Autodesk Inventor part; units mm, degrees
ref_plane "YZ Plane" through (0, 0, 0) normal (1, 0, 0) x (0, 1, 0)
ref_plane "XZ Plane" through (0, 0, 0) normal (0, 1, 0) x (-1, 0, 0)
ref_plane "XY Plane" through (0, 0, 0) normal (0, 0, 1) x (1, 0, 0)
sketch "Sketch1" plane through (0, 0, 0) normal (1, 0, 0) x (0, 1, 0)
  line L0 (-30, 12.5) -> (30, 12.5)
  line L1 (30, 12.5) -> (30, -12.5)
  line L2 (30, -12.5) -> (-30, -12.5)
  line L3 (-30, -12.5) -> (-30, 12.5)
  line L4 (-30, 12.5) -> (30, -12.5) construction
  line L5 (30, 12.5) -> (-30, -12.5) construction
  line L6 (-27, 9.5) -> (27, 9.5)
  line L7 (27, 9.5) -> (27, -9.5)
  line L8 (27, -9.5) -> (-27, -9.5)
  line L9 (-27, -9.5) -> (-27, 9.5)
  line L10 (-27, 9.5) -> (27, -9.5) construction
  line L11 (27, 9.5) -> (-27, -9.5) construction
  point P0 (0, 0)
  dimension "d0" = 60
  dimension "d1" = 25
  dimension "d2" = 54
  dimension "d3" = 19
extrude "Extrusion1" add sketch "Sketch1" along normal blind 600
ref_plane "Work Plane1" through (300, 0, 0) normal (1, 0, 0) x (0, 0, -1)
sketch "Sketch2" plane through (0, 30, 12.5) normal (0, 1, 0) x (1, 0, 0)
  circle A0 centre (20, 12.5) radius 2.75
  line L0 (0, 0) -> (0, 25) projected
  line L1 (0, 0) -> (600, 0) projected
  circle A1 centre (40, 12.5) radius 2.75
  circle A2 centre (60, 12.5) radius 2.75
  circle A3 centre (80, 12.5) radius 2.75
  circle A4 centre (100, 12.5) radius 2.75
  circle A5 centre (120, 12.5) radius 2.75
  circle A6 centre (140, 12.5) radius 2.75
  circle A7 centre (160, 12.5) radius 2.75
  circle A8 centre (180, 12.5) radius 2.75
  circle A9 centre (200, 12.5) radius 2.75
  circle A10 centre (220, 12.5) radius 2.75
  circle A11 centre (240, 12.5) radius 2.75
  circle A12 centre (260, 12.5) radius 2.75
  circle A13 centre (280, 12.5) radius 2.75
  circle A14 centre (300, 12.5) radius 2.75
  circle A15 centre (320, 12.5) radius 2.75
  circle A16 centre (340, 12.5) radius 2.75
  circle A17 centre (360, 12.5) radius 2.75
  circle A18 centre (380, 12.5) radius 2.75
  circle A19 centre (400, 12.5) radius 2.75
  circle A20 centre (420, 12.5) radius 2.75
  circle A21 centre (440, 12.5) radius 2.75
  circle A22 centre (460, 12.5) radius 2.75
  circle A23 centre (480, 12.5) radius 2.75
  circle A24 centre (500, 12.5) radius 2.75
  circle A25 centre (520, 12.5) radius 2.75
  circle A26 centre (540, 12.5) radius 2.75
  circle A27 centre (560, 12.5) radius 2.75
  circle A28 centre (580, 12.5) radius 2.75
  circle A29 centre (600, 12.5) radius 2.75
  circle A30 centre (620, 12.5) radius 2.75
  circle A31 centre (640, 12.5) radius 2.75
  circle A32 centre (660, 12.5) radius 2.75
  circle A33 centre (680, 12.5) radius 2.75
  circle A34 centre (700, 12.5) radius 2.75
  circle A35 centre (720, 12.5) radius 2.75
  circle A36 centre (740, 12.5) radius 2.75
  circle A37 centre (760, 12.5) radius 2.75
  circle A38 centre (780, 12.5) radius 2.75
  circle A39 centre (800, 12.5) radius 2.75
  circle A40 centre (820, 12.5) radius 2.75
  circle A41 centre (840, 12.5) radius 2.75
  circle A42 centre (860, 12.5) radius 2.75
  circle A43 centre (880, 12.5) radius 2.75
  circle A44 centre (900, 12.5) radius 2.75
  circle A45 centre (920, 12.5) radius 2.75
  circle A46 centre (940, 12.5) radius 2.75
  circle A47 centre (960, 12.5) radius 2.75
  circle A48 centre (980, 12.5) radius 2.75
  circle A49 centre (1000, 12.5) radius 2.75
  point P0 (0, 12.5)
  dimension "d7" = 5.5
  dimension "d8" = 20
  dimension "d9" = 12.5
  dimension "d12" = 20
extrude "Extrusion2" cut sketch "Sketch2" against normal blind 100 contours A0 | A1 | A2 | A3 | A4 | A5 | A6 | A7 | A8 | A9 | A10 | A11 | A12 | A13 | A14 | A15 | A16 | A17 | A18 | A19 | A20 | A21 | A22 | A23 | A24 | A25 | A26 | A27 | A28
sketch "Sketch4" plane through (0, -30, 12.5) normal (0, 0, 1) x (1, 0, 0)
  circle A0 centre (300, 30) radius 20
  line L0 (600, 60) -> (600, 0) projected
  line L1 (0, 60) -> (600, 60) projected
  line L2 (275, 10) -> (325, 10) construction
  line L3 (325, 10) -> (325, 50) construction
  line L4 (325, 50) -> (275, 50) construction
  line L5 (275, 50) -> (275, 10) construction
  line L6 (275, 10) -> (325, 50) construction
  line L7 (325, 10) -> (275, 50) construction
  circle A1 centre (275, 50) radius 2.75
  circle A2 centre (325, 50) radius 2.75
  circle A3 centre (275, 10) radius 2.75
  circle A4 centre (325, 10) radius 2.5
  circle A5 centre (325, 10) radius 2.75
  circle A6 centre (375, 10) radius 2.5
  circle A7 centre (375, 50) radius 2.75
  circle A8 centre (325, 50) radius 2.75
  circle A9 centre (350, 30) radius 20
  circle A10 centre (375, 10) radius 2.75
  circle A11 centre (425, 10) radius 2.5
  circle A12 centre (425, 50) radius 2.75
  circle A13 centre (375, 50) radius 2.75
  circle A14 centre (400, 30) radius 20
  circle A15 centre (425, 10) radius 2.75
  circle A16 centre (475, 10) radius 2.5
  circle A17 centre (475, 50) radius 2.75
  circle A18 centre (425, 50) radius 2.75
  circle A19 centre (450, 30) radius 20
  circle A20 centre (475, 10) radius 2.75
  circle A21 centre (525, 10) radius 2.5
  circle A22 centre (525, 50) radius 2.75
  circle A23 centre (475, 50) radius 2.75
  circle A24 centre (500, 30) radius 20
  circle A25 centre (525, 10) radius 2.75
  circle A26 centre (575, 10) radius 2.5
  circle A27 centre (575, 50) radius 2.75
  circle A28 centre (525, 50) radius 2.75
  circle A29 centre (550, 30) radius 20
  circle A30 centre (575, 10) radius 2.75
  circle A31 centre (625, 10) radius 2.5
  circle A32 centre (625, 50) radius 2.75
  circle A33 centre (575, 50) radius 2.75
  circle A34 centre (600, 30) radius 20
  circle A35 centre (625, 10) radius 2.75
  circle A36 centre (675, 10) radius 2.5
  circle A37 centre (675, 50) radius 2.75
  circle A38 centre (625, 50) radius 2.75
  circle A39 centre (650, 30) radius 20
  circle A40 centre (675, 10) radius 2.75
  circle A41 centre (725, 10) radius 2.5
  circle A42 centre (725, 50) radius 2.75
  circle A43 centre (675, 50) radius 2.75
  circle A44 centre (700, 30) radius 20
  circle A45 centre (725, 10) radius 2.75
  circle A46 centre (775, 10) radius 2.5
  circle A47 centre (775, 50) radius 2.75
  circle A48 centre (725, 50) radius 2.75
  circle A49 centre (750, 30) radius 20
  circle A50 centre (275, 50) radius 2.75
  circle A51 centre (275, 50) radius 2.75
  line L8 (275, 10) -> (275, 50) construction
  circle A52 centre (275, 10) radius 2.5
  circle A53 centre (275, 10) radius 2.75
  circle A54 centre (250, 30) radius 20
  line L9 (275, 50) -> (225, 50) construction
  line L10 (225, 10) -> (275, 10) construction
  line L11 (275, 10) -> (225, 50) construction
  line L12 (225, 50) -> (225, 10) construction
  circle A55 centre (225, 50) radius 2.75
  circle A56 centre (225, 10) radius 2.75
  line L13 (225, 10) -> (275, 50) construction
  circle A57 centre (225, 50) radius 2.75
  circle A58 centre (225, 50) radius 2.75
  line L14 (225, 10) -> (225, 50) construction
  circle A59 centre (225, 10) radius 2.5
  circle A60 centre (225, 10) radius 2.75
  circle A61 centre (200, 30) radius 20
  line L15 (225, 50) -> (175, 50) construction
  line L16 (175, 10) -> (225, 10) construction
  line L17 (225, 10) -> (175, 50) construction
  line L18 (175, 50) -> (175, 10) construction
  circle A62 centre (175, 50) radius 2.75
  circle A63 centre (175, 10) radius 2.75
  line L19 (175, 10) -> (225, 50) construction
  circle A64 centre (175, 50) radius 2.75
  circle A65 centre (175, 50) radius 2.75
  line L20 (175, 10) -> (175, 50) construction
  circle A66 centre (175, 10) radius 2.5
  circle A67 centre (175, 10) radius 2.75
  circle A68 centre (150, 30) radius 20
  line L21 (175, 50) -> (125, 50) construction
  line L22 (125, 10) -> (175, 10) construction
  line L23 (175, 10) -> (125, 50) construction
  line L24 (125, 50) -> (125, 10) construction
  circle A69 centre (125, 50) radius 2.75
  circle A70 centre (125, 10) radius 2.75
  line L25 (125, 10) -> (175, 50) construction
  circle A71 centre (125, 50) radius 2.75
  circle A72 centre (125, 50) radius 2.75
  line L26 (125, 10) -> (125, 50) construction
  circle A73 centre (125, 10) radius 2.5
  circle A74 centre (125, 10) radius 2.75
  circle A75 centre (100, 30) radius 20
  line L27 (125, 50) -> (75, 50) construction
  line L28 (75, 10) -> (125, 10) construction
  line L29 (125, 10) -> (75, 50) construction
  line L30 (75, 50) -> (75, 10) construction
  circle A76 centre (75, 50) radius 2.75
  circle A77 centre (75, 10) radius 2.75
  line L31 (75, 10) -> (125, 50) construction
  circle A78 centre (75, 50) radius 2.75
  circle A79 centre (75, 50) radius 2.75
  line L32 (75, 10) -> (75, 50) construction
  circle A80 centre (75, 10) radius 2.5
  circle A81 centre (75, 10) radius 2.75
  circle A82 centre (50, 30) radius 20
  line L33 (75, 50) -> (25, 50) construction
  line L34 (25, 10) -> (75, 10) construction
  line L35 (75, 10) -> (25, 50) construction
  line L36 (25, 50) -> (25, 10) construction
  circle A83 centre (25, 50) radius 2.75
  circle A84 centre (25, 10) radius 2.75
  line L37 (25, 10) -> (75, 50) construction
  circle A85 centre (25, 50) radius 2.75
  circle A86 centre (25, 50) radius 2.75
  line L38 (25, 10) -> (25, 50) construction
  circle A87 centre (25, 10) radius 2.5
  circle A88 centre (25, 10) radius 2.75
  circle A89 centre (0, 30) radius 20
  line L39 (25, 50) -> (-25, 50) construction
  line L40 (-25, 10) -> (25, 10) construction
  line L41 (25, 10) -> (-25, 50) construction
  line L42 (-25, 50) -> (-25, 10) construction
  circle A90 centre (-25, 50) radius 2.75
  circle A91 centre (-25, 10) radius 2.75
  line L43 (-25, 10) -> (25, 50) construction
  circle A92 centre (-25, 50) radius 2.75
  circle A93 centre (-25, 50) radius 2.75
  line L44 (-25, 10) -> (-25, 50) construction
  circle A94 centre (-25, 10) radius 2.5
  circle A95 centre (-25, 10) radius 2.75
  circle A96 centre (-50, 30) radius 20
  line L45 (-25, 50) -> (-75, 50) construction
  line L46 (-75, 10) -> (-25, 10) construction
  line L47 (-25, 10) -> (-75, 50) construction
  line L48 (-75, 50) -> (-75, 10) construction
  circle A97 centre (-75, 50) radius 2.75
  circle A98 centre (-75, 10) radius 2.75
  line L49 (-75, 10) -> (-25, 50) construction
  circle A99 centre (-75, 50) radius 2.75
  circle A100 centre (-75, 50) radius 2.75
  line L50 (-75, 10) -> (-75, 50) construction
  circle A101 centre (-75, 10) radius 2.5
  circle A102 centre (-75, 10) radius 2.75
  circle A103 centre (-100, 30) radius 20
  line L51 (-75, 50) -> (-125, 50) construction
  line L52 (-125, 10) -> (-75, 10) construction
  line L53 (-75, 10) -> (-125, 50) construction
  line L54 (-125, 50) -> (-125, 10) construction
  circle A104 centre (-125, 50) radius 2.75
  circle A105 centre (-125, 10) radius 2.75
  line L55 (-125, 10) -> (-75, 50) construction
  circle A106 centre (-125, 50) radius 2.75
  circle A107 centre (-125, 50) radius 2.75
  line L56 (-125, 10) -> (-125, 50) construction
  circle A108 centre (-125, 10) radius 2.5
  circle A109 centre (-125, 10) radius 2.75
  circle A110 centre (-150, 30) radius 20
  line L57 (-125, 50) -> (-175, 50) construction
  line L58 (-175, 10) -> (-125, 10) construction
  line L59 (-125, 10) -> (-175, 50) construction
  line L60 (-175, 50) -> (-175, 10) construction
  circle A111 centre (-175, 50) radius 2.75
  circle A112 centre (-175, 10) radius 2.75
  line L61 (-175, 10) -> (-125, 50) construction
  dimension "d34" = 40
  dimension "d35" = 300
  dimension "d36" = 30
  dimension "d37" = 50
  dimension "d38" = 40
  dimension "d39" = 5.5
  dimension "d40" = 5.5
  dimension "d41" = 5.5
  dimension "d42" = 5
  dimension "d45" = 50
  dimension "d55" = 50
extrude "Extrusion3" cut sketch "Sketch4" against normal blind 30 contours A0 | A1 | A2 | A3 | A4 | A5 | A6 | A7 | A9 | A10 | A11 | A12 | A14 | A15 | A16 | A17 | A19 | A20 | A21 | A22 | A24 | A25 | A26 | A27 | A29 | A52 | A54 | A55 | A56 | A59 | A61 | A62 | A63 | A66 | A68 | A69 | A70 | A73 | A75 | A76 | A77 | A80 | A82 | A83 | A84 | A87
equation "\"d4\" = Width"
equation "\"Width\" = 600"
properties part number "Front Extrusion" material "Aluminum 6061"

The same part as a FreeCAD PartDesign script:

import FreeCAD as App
import Part
import Sketcher

V = App.Vector
Q = App.Units.Quantity


def add_polygon(sketch, points):
    """Adds a closed chain of lines whose ends are joined by coincident constraints."""
    first, n = sketch.GeometryCount, len(points)
    for a, b in zip(points, points[1:] + points[:1]):
        sketch.addGeometry(Part.LineSegment(App.Vector(*a, 0), App.Vector(*b, 0)), False)
    for i in range(n):
        sketch.addConstraint(Sketcher.Constraint("Coincident", first + i, 2, first + (i + 1) % n, 1))

doc = App.newDocument("Part")
body = doc.addObject("PartDesign::Body", "Body")

# Sketch on YZ plane
sketch1 = body.newObject("Sketcher::SketchObject", "Sketch")
sketch1.AttachmentSupport = (doc.getObject("YZ_Plane"), [""])
sketch1.MapMode = "FlatFace"
add_polygon(sketch1, [(30, 12), (-30, 12), (-30, -12), (30, -12)])  # lines 0-3
add_polygon(sketch1, [(-27, -10), (-27, 10), (27, 10), (27, -10)])  # lines 4-7
sketch1.addConstraint(Sketcher.Constraint("Horizontal", 0))
sketch1.addConstraint(Sketcher.Constraint("Vertical", 1))
sketch1.addConstraint(Sketcher.Constraint("Horizontal", 2))
sketch1.addConstraint(Sketcher.Constraint("Vertical", 3))
sketch1.addConstraint(Sketcher.Constraint("Vertical", 4))
sketch1.addConstraint(Sketcher.Constraint("Horizontal", 5))
sketch1.addConstraint(Sketcher.Constraint("Vertical", 6))
sketch1.addConstraint(Sketcher.Constraint("Horizontal", 7))
sketch1.addConstraint(Sketcher.Constraint("Symmetric", 0, 2, 2, 2, -1, 1))
sketch1.addConstraint(Sketcher.Constraint("Symmetric", 4, 2, 6, 2, -1, 1))
sketch1.addConstraint(Sketcher.Constraint("DistanceX", 0, 2, 0, 1, Q("60 mm")))
sketch1.addConstraint(Sketcher.Constraint("DistanceX", 5, 1, 5, 2, Q("54 mm")))
sketch1.addConstraint(Sketcher.Constraint("DistanceY", 1, 2, 1, 1, Q("25 mm")))
sketch1.addConstraint(Sketcher.Constraint("DistanceY", 4, 1, 4, 2, Q("19 mm")))
pad1 = body.newObject("PartDesign::Pad", "Pad")
pad1.Profile = sketch1
pad1.Length = 600

# Sketch on XZ plane
sketch2 = body.newObject("Sketcher::SketchObject", "Sketch001")
sketch2.AttachmentSupport = (doc.getObject("XZ_Plane"), [""])
sketch2.MapMode = "FlatFace"
sketch2.AttachmentOffset = App.Placement(V(0, 0, -30), App.Rotation())
sketch2.addGeometry(Part.Circle(V(20, 0, 0), V(0, 0, 1), 2.8), False)
sketch2.addGeometry(Part.Circle(V(40, 0, 0), V(0, 0, 1), 2.8), False)
sketch2.addGeometry(Part.Circle(V(60, 0, 0), V(0, 0, 1), 2.8), False)
sketch2.addGeometry(Part.Circle(V(80, 0, 0), V(0, 0, 1), 2.8), False)
sketch2.addGeometry(Part.Circle(V(100, 0, 0), V(0, 0, 1), 2.8), False)
sketch2.addGeometry(Part.Circle(V(120, 0, 0), V(0, 0, 1), 2.8), False)
sketch2.addGeometry(Part.Circle(V(140, 0, 0), V(0, 0, 1), 2.8), False)
sketch2.addGeometry(Part.Circle(V(160, 0, 0), V(0, 0, 1), 2.8), False)
sketch2.addGeometry(Part.Circle(V(180, 0, 0), V(0, 0, 1), 2.8), False)
sketch2.addGeometry(Part.Circle(V(200, 0, 0), V(0, 0, 1), 2.8), False)
sketch2.addGeometry(Part.Circle(V(220, 0, 0), V(0, 0, 1), 2.8), False)
sketch2.addGeometry(Part.Circle(V(240, 0, 0), V(0, 0, 1), 2.8), False)
sketch2.addGeometry(Part.Circle(V(260, 0, 0), V(0, 0, 1), 2.8), False)
sketch2.addGeometry(Part.Circle(V(280, 0, 0), V(0, 0, 1), 2.8), False)
sketch2.addGeometry(Part.Circle(V(300, 0, 0), V(0, 0, 1), 2.8), False)
sketch2.addGeometry(Part.Circle(V(320, 0, 0), V(0, 0, 1), 2.8), False)
sketch2.addGeometry(Part.Circle(V(340, 0, 0), V(0, 0, 1), 2.8), False)
sketch2.addGeometry(Part.Circle(V(360, 0, 0), V(0, 0, 1), 2.8), False)
sketch2.addGeometry(Part.Circle(V(380, 0, 0), V(0, 0, 1), 2.8), False)
sketch2.addGeometry(Part.Circle(V(400, 0, 0), V(0, 0, 1), 2.8), False)
sketch2.addGeometry(Part.Circle(V(420, 0, 0), V(0, 0, 1), 2.8), False)
sketch2.addGeometry(Part.Circle(V(440, 0, 0), V(0, 0, 1), 2.8), False)
sketch2.addGeometry(Part.Circle(V(460, 0, 0), V(0, 0, 1), 2.8), False)
sketch2.addGeometry(Part.Circle(V(480, 0, 0), V(0, 0, 1), 2.8), False)
sketch2.addGeometry(Part.Circle(V(500, 0, 0), V(0, 0, 1), 2.8), False)
sketch2.addGeometry(Part.Circle(V(520, 0, 0), V(0, 0, 1), 2.8), False)
sketch2.addGeometry(Part.Circle(V(540, 0, 0), V(0, 0, 1), 2.8), False)
sketch2.addGeometry(Part.Circle(V(560, 0, 0), V(0, 0, 1), 2.8), False)
sketch2.addGeometry(Part.Circle(V(580, 0, 0), V(0, 0, 1), 2.8), False)
sketch2.addConstraint(Sketcher.Constraint("Equal", 0, 1))
sketch2.addConstraint(Sketcher.Constraint("Equal", 1, 2))
sketch2.addConstraint(Sketcher.Constraint("Equal", 2, 3))
sketch2.addConstraint(Sketcher.Constraint("Equal", 3, 4))
sketch2.addConstraint(Sketcher.Constraint("Equal", 4, 5))
sketch2.addConstraint(Sketcher.Constraint("Equal", 5, 6))
sketch2.addConstraint(Sketcher.Constraint("Equal", 6, 7))
sketch2.addConstraint(Sketcher.Constraint("Equal", 7, 8))
sketch2.addConstraint(Sketcher.Constraint("Equal", 8, 9))
sketch2.addConstraint(Sketcher.Constraint("Equal", 9, 10))
sketch2.addConstraint(Sketcher.Constraint("Equal", 10, 11))
sketch2.addConstraint(Sketcher.Constraint("Equal", 11, 12))
sketch2.addConstraint(Sketcher.Constraint("Equal", 12, 13))
sketch2.addConstraint(Sketcher.Constraint("Equal", 13, 14))
sketch2.addConstraint(Sketcher.Constraint("Equal", 14, 15))
sketch2.addConstraint(Sketcher.Constraint("Equal", 15, 16))
sketch2.addConstraint(Sketcher.Constraint("Equal", 16, 17))
sketch2.addConstraint(Sketcher.Constraint("Equal", 17, 18))
sketch2.addConstraint(Sketcher.Constraint("Equal", 18, 19))
sketch2.addConstraint(Sketcher.Constraint("Equal", 19, 20))
sketch2.addConstraint(Sketcher.Constraint("Equal", 20, 21))
sketch2.addConstraint(Sketcher.Constraint("Equal", 21, 22))
sketch2.addConstraint(Sketcher.Constraint("Equal", 22, 23))
sketch2.addConstraint(Sketcher.Constraint("Equal", 23, 24))
sketch2.addConstraint(Sketcher.Constraint("Equal", 24, 25))
sketch2.addConstraint(Sketcher.Constraint("Equal", 25, 26))
sketch2.addConstraint(Sketcher.Constraint("Equal", 26, 27))
sketch2.addConstraint(Sketcher.Constraint("Equal", 27, 28))
sketch2.addConstraint(Sketcher.Constraint("PointOnObject", 0, 3, -1))
sketch2.addConstraint(Sketcher.Constraint("PointOnObject", 1, 3, -1))
sketch2.addConstraint(Sketcher.Constraint("PointOnObject", 2, 3, -1))
sketch2.addConstraint(Sketcher.Constraint("PointOnObject", 3, 3, -1))
sketch2.addConstraint(Sketcher.Constraint("PointOnObject", 4, 3, -1))
sketch2.addConstraint(Sketcher.Constraint("PointOnObject", 5, 3, -1))
sketch2.addConstraint(Sketcher.Constraint("PointOnObject", 6, 3, -1))
sketch2.addConstraint(Sketcher.Constraint("PointOnObject", 7, 3, -1))
sketch2.addConstraint(Sketcher.Constraint("PointOnObject", 8, 3, -1))
sketch2.addConstraint(Sketcher.Constraint("PointOnObject", 9, 3, -1))
sketch2.addConstraint(Sketcher.Constraint("PointOnObject", 10, 3, -1))
sketch2.addConstraint(Sketcher.Constraint("PointOnObject", 11, 3, -1))
sketch2.addConstraint(Sketcher.Constraint("PointOnObject", 12, 3, -1))
sketch2.addConstraint(Sketcher.Constraint("PointOnObject", 13, 3, -1))
sketch2.addConstraint(Sketcher.Constraint("PointOnObject", 14, 3, -1))
sketch2.addConstraint(Sketcher.Constraint("PointOnObject", 15, 3, -1))
sketch2.addConstraint(Sketcher.Constraint("PointOnObject", 16, 3, -1))
sketch2.addConstraint(Sketcher.Constraint("PointOnObject", 17, 3, -1))
sketch2.addConstraint(Sketcher.Constraint("PointOnObject", 18, 3, -1))
sketch2.addConstraint(Sketcher.Constraint("PointOnObject", 19, 3, -1))
sketch2.addConstraint(Sketcher.Constraint("PointOnObject", 20, 3, -1))
sketch2.addConstraint(Sketcher.Constraint("PointOnObject", 21, 3, -1))
sketch2.addConstraint(Sketcher.Constraint("PointOnObject", 22, 3, -1))
sketch2.addConstraint(Sketcher.Constraint("PointOnObject", 23, 3, -1))
sketch2.addConstraint(Sketcher.Constraint("PointOnObject", 24, 3, -1))
sketch2.addConstraint(Sketcher.Constraint("PointOnObject", 25, 3, -1))
sketch2.addConstraint(Sketcher.Constraint("PointOnObject", 26, 3, -1))
sketch2.addConstraint(Sketcher.Constraint("PointOnObject", 27, 3, -1))
sketch2.addConstraint(Sketcher.Constraint("PointOnObject", 28, 3, -1))
sketch2.addConstraint(Sketcher.Constraint("Diameter", 0, Q("5.5 mm")))
sketch2.addConstraint(Sketcher.Constraint("DistanceX", -1, 1, 0, 3, Q("20 mm")))
sketch2.addConstraint(Sketcher.Constraint("DistanceX", 0, 3, 1, 3, Q("20 mm")))
sketch2.addConstraint(Sketcher.Constraint("DistanceX", 1, 3, 2, 3, Q("20 mm")))
sketch2.addConstraint(Sketcher.Constraint("DistanceX", 2, 3, 3, 3, Q("20 mm")))
sketch2.addConstraint(Sketcher.Constraint("DistanceX", 3, 3, 4, 3, Q("20 mm")))
sketch2.addConstraint(Sketcher.Constraint("DistanceX", 4, 3, 5, 3, Q("20 mm")))
sketch2.addConstraint(Sketcher.Constraint("DistanceX", 5, 3, 6, 3, Q("20 mm")))
sketch2.addConstraint(Sketcher.Constraint("DistanceX", 6, 3, 7, 3, Q("20 mm")))
sketch2.addConstraint(Sketcher.Constraint("DistanceX", 7, 3, 8, 3, Q("20 mm")))
sketch2.addConstraint(Sketcher.Constraint("DistanceX", 8, 3, 9, 3, Q("20 mm")))
sketch2.addConstraint(Sketcher.Constraint("DistanceX", 9, 3, 10, 3, Q("20 mm")))
sketch2.addConstraint(Sketcher.Constraint("DistanceX", 10, 3, 11, 3, Q("20 mm")))
sketch2.addConstraint(Sketcher.Constraint("DistanceX", 11, 3, 12, 3, Q("20 mm")))
sketch2.addConstraint(Sketcher.Constraint("DistanceX", 12, 3, 13, 3, Q("20 mm")))
sketch2.addConstraint(Sketcher.Constraint("DistanceX", 13, 3, 14, 3, Q("20 mm")))
sketch2.addConstraint(Sketcher.Constraint("DistanceX", 14, 3, 15, 3, Q("20 mm")))
sketch2.addConstraint(Sketcher.Constraint("DistanceX", 15, 3, 16, 3, Q("20 mm")))
sketch2.addConstraint(Sketcher.Constraint("DistanceX", 16, 3, 17, 3, Q("20 mm")))
sketch2.addConstraint(Sketcher.Constraint("DistanceX", 17, 3, 18, 3, Q("20 mm")))
sketch2.addConstraint(Sketcher.Constraint("DistanceX", 18, 3, 19, 3, Q("20 mm")))
sketch2.addConstraint(Sketcher.Constraint("DistanceX", 19, 3, 20, 3, Q("20 mm")))
sketch2.addConstraint(Sketcher.Constraint("DistanceX", 20, 3, 21, 3, Q("20 mm")))
sketch2.addConstraint(Sketcher.Constraint("DistanceX", 21, 3, 22, 3, Q("20 mm")))
sketch2.addConstraint(Sketcher.Constraint("DistanceX", 22, 3, 23, 3, Q("20 mm")))
sketch2.addConstraint(Sketcher.Constraint("DistanceX", 23, 3, 24, 3, Q("20 mm")))
sketch2.addConstraint(Sketcher.Constraint("DistanceX", 24, 3, 25, 3, Q("20 mm")))
sketch2.addConstraint(Sketcher.Constraint("DistanceX", 25, 3, 26, 3, Q("20 mm")))
sketch2.addConstraint(Sketcher.Constraint("DistanceX", 26, 3, 27, 3, Q("20 mm")))
sketch2.addConstraint(Sketcher.Constraint("DistanceX", 27, 3, 28, 3, Q("20 mm")))
pocket1 = body.newObject("PartDesign::Pocket", "Pocket")
pocket1.Profile = sketch2
pocket1.Length = 100
pocket1.Reversed = True

# Sketch on XY plane
sketch3 = body.newObject("Sketcher::SketchObject", "Sketch002")
sketch3.AttachmentSupport = (doc.getObject("XY_Plane"), [""])
sketch3.MapMode = "FlatFace"
sketch3.AttachmentOffset = App.Placement(V(0, 0, 12.5), App.Rotation())
sketch3.addGeometry(Part.Circle(V(300, 0, 0), V(0, 0, 1), 20), False)
sketch3.addGeometry(Part.Circle(V(275, 20, 0), V(0, 0, 1), 2.8), False)
sketch3.addGeometry(Part.Circle(V(325, 20, 0), V(0, 0, 1), 2.8), False)
sketch3.addGeometry(Part.Circle(V(275, -20, 0), V(0, 0, 1), 2.8), False)
sketch3.addGeometry(Part.Circle(V(325, -20, 0), V(0, 0, 1), 2.8), False)
sketch3.addGeometry(Part.Circle(V(375, -20, 0), V(0, 0, 1), 2.8), False)
sketch3.addGeometry(Part.Circle(V(375, 20, 0), V(0, 0, 1), 2.8), False)
sketch3.addGeometry(Part.Circle(V(350, 0, 0), V(0, 0, 1), 20), False)
sketch3.addGeometry(Part.Circle(V(425, -20, 0), V(0, 0, 1), 2.8), False)
sketch3.addGeometry(Part.Circle(V(425, 20, 0), V(0, 0, 1), 2.8), False)
sketch3.addGeometry(Part.Circle(V(400, 0, 0), V(0, 0, 1), 20), False)
sketch3.addGeometry(Part.Circle(V(475, -20, 0), V(0, 0, 1), 2.8), False)
sketch3.addGeometry(Part.Circle(V(475, 20, 0), V(0, 0, 1), 2.8), False)
sketch3.addGeometry(Part.Circle(V(450, 0, 0), V(0, 0, 1), 20), False)
sketch3.addGeometry(Part.Circle(V(525, -20, 0), V(0, 0, 1), 2.8), False)
sketch3.addGeometry(Part.Circle(V(525, 20, 0), V(0, 0, 1), 2.8), False)
sketch3.addGeometry(Part.Circle(V(500, 0, 0), V(0, 0, 1), 20), False)
sketch3.addGeometry(Part.Circle(V(575, -20, 0), V(0, 0, 1), 2.5), False)
sketch3.addGeometry(Part.Circle(V(575, 20, 0), V(0, 0, 1), 2.8), False)
sketch3.addGeometry(Part.Circle(V(550, 0, 0), V(0, 0, 1), 20), False)
sketch3.addGeometry(Part.Circle(V(250, 0, 0), V(0, 0, 1), 20), False)
sketch3.addGeometry(Part.Circle(V(225, 20, 0), V(0, 0, 1), 2.8), False)
sketch3.addGeometry(Part.Circle(V(225, -20, 0), V(0, 0, 1), 2.8), False)
sketch3.addGeometry(Part.Circle(V(200, 0, 0), V(0, 0, 1), 20), False)
sketch3.addGeometry(Part.Circle(V(175, 20, 0), V(0, 0, 1), 2.8), False)
sketch3.addGeometry(Part.Circle(V(175, -20, 0), V(0, 0, 1), 2.8), False)
sketch3.addGeometry(Part.Circle(V(150, 0, 0), V(0, 0, 1), 20), False)
sketch3.addGeometry(Part.Circle(V(125, 20, 0), V(0, 0, 1), 2.8), False)
sketch3.addGeometry(Part.Circle(V(125, -20, 0), V(0, 0, 1), 2.8), False)
sketch3.addGeometry(Part.Circle(V(100, 0, 0), V(0, 0, 1), 20), False)
sketch3.addGeometry(Part.Circle(V(75, 20, 0), V(0, 0, 1), 2.8), False)
sketch3.addGeometry(Part.Circle(V(75, -20, 0), V(0, 0, 1), 2.8), False)
sketch3.addGeometry(Part.Circle(V(50, 0, 0), V(0, 0, 1), 20), False)
sketch3.addGeometry(Part.Circle(V(25, 20, 0), V(0, 0, 1), 2.8), False)
sketch3.addGeometry(Part.Circle(V(25, -20, 0), V(0, 0, 1), 2.8), False)
sketch3.addConstraint(Sketcher.Constraint("Equal", 1, 2))
sketch3.addConstraint(Sketcher.Constraint("Equal", 2, 3))
sketch3.addConstraint(Sketcher.Constraint("Equal", 3, 4))
sketch3.addConstraint(Sketcher.Constraint("Equal", 4, 5))
sketch3.addConstraint(Sketcher.Constraint("Equal", 5, 6))
sketch3.addConstraint(Sketcher.Constraint("Equal", 0, 7))
sketch3.addConstraint(Sketcher.Constraint("Equal", 6, 8))
sketch3.addConstraint(Sketcher.Constraint("Equal", 8, 9))
sketch3.addConstraint(Sketcher.Constraint("Equal", 7, 10))
sketch3.addConstraint(Sketcher.Constraint("Equal", 9, 11))
sketch3.addConstraint(Sketcher.Constraint("Equal", 11, 12))
sketch3.addConstraint(Sketcher.Constraint("Equal", 10, 13))
sketch3.addConstraint(Sketcher.Constraint("Equal", 12, 14))
sketch3.addConstraint(Sketcher.Constraint("Equal", 14, 15))
sketch3.addConstraint(Sketcher.Constraint("Equal", 13, 16))
sketch3.addConstraint(Sketcher.Constraint("Equal", 15, 18))
sketch3.addConstraint(Sketcher.Constraint("Equal", 16, 19))
sketch3.addConstraint(Sketcher.Constraint("Equal", 19, 20))
sketch3.addConstraint(Sketcher.Constraint("Equal", 18, 21))
sketch3.addConstraint(Sketcher.Constraint("Equal", 21, 22))
sketch3.addConstraint(Sketcher.Constraint("Equal", 20, 23))
sketch3.addConstraint(Sketcher.Constraint("Equal", 22, 24))
sketch3.addConstraint(Sketcher.Constraint("Equal", 24, 25))
sketch3.addConstraint(Sketcher.Constraint("Equal", 23, 26))
sketch3.addConstraint(Sketcher.Constraint("Equal", 25, 27))
sketch3.addConstraint(Sketcher.Constraint("Equal", 27, 28))
sketch3.addConstraint(Sketcher.Constraint("Equal", 26, 29))
sketch3.addConstraint(Sketcher.Constraint("Equal", 28, 30))
sketch3.addConstraint(Sketcher.Constraint("Equal", 30, 31))
sketch3.addConstraint(Sketcher.Constraint("Equal", 29, 32))
sketch3.addConstraint(Sketcher.Constraint("Equal", 31, 33))
sketch3.addConstraint(Sketcher.Constraint("Equal", 33, 34))
sketch3.addConstraint(Sketcher.Constraint("Symmetric", 1, 3, 3, 3, -1))
sketch3.addConstraint(Sketcher.Constraint("Symmetric", 2, 3, 4, 3, -1))
sketch3.addConstraint(Sketcher.Constraint("Symmetric", 5, 3, 6, 3, -1))
sketch3.addConstraint(Sketcher.Constraint("Symmetric", 8, 3, 9, 3, -1))
sketch3.addConstraint(Sketcher.Constraint("Symmetric", 11, 3, 12, 3, -1))
sketch3.addConstraint(Sketcher.Constraint("Symmetric", 14, 3, 15, 3, -1))
sketch3.addConstraint(Sketcher.Constraint("Symmetric", 17, 3, 18, 3, -1))
sketch3.addConstraint(Sketcher.Constraint("Symmetric", 21, 3, 22, 3, -1))
sketch3.addConstraint(Sketcher.Constraint("Symmetric", 24, 3, 25, 3, -1))
sketch3.addConstraint(Sketcher.Constraint("Symmetric", 27, 3, 28, 3, -1))
sketch3.addConstraint(Sketcher.Constraint("Symmetric", 30, 3, 31, 3, -1))
sketch3.addConstraint(Sketcher.Constraint("Symmetric", 33, 3, 34, 3, -1))
sketch3.addConstraint(Sketcher.Constraint("PointOnObject", 0, 3, -1))
sketch3.addConstraint(Sketcher.Constraint("PointOnObject", 7, 3, -1))
sketch3.addConstraint(Sketcher.Constraint("PointOnObject", 10, 3, -1))
sketch3.addConstraint(Sketcher.Constraint("PointOnObject", 13, 3, -1))
sketch3.addConstraint(Sketcher.Constraint("PointOnObject", 16, 3, -1))
sketch3.addConstraint(Sketcher.Constraint("PointOnObject", 19, 3, -1))
sketch3.addConstraint(Sketcher.Constraint("PointOnObject", 20, 3, -1))
sketch3.addConstraint(Sketcher.Constraint("PointOnObject", 23, 3, -1))
sketch3.addConstraint(Sketcher.Constraint("PointOnObject", 26, 3, -1))
sketch3.addConstraint(Sketcher.Constraint("PointOnObject", 29, 3, -1))
sketch3.addConstraint(Sketcher.Constraint("PointOnObject", 32, 3, -1))
sketch3.addConstraint(Sketcher.Constraint("Horizontal", 1, 3, 2, 3))
sketch3.addConstraint(Sketcher.Constraint("Horizontal", 4, 3, 5, 3))
sketch3.addConstraint(Sketcher.Constraint("Horizontal", 5, 3, 8, 3))
sketch3.addConstraint(Sketcher.Constraint("Horizontal", 8, 3, 11, 3))
sketch3.addConstraint(Sketcher.Constraint("Horizontal", 11, 3, 14, 3))
sketch3.addConstraint(Sketcher.Constraint("Horizontal", 14, 3, 17, 3))
sketch3.addConstraint(Sketcher.Constraint("Horizontal", 18, 3, 21, 3))
sketch3.addConstraint(Sketcher.Constraint("Horizontal", 21, 3, 24, 3))
sketch3.addConstraint(Sketcher.Constraint("Horizontal", 24, 3, 27, 3))
sketch3.addConstraint(Sketcher.Constraint("Horizontal", 27, 3, 30, 3))
sketch3.addConstraint(Sketcher.Constraint("Horizontal", 30, 3, 33, 3))
sketch3.addConstraint(Sketcher.Constraint("Diameter", 0, Q("40 mm")))
sketch3.addConstraint(Sketcher.Constraint("Diameter", 17, Q("5 mm")))
sketch3.addConstraint(Sketcher.Constraint("Diameter", 1, Q("5.5 mm")))
sketch3.addConstraint(Sketcher.Constraint("DistanceX", -1, 1, 0, 3, Q("300 mm")))
sketch3.addConstraint(Sketcher.Constraint("DistanceX", -1, 1, 32, 3, Q("50 mm")))
sketch3.addConstraint(Sketcher.Constraint("DistanceX", 1, 3, 2, 3, Q("50 mm")))
sketch3.addConstraint(Sketcher.Constraint("DistanceY", 3, 3, 1, 3, Q("40 mm")))
sketch3.addConstraint(Sketcher.Constraint("DistanceX", 4, 3, 5, 3, Q("50 mm")))
sketch3.addConstraint(Sketcher.Constraint("DistanceX", 0, 3, 7, 3, Q("50 mm")))
sketch3.addConstraint(Sketcher.Constraint("DistanceX", 5, 3, 8, 3, Q("50 mm")))
sketch3.addConstraint(Sketcher.Constraint("DistanceX", 7, 3, 10, 3, Q("50 mm")))
sketch3.addConstraint(Sketcher.Constraint("DistanceX", 8, 3, 11, 3, Q("50 mm")))
sketch3.addConstraint(Sketcher.Constraint("DistanceX", 10, 3, 13, 3, Q("50 mm")))
sketch3.addConstraint(Sketcher.Constraint("DistanceX", 11, 3, 14, 3, Q("50 mm")))
sketch3.addConstraint(Sketcher.Constraint("DistanceX", 13, 3, 16, 3, Q("50 mm")))
sketch3.addConstraint(Sketcher.Constraint("DistanceX", 14, 3, 17, 3, Q("50 mm")))
sketch3.addConstraint(Sketcher.Constraint("DistanceX", 16, 3, 19, 3, Q("50 mm")))
sketch3.addConstraint(Sketcher.Constraint("DistanceX", 20, 3, 0, 3, Q("50 mm")))
sketch3.addConstraint(Sketcher.Constraint("DistanceX", 21, 3, 1, 3, Q("50 mm")))
sketch3.addConstraint(Sketcher.Constraint("DistanceX", 23, 3, 20, 3, Q("50 mm")))
sketch3.addConstraint(Sketcher.Constraint("DistanceX", 24, 3, 21, 3, Q("50 mm")))
sketch3.addConstraint(Sketcher.Constraint("DistanceX", 26, 3, 23, 3, Q("50 mm")))
sketch3.addConstraint(Sketcher.Constraint("DistanceX", 27, 3, 24, 3, Q("50 mm")))
sketch3.addConstraint(Sketcher.Constraint("DistanceX", 29, 3, 26, 3, Q("50 mm")))
sketch3.addConstraint(Sketcher.Constraint("DistanceX", 30, 3, 27, 3, Q("50 mm")))
sketch3.addConstraint(Sketcher.Constraint("DistanceX", 33, 3, 30, 3, Q("50 mm")))
sketch3.addConstraint(Sketcher.Constraint("DistanceX", -1, 1, 1, 3, Q("275 mm")))
pocket2 = body.newObject("PartDesign::Pocket", "Pocket001")
pocket2.Profile = sketch3
pocket2.Length = 30

doc.recompute()
